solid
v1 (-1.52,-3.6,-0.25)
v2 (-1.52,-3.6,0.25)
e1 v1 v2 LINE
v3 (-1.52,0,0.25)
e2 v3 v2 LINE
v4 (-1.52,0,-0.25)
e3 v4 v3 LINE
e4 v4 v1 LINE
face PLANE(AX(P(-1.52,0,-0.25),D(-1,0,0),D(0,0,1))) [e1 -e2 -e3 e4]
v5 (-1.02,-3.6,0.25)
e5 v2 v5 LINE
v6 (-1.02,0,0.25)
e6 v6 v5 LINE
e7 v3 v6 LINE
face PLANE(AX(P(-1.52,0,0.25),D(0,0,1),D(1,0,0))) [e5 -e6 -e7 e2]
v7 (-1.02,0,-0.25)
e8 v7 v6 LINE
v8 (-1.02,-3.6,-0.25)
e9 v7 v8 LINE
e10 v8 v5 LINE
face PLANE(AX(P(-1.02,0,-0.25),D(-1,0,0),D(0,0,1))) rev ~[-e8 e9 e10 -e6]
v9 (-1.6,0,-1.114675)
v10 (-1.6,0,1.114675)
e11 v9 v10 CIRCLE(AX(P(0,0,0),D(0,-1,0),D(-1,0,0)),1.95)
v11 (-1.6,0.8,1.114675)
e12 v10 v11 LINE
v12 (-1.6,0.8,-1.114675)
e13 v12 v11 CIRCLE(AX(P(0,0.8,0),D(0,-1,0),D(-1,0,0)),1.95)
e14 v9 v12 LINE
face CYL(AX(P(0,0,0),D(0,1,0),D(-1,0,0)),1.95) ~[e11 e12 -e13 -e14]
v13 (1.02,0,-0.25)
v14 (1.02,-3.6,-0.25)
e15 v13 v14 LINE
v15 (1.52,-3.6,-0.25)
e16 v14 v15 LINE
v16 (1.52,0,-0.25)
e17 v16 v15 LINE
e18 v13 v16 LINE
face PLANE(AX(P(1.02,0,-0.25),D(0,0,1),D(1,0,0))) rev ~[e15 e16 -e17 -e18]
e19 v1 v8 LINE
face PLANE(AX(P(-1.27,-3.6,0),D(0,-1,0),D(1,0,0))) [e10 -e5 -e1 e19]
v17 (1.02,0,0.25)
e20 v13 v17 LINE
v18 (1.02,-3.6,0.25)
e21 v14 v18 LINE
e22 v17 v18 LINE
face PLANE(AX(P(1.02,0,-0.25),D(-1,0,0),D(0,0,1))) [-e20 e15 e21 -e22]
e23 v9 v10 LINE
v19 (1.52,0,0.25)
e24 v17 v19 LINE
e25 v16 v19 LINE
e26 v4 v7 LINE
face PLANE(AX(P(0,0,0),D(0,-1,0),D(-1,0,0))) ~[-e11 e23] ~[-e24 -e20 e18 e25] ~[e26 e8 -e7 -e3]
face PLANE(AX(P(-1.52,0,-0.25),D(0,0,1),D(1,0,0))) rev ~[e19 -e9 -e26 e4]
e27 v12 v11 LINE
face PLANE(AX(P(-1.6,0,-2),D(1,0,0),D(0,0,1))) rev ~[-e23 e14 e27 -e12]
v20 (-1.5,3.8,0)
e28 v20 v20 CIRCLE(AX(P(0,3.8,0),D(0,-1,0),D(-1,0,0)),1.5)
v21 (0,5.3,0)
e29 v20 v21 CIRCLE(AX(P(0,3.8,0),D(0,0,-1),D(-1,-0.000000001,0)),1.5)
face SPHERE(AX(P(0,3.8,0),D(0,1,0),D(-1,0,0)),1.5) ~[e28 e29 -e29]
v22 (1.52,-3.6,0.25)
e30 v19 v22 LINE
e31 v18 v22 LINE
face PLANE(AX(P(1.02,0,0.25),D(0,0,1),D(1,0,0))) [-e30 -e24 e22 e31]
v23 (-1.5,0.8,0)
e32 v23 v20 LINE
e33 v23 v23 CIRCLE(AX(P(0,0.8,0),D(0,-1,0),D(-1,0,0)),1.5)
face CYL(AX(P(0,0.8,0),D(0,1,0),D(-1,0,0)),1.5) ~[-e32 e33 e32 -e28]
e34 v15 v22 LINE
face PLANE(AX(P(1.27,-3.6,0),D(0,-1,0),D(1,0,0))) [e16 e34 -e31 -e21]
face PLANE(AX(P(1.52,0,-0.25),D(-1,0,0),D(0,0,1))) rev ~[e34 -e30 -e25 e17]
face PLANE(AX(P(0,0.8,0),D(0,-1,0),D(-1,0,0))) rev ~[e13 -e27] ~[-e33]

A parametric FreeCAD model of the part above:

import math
import FreeCAD as App
import Part
import Sketcher
from FreeCAD import Vector

doc = App.newDocument("Part")
body = doc.addObject("PartDesign::Body", "Body")

sketch1 = body.newObject("Sketcher::SketchObject", "Sketch")
sketch1.AttachmentSupport = (doc.getObject("XY_Plane"), [""])
sketch1.MapMode = "FlatFace"
sketch1.addGeometry([
    Part.LineSegment(Vector(-1.95, 0, 0), Vector(0, 0, 0)),
    Part.LineSegment(Vector(0, 0, 0), Vector(0, 5.3, 0)),
    Part.ArcOfCircle(Part.Circle(Vector(0, 3.8, 0), Vector(0, 0, 1), 1.5), math.radians(90), math.radians(180)),
    Part.LineSegment(Vector(-1.5, 3.8, 0), Vector(-1.5, 0.8, 0)),
    Part.LineSegment(Vector(-1.5, 0.8, 0), Vector(-1.95, 0.8, 0)),
    Part.LineSegment(Vector(-1.95, 0.8, 0), Vector(-1.95, 0, 0)),
], False)
sketch1.addConstraint([
    Sketcher.Constraint("Coincident", 0, 2, 1, 1),
    Sketcher.Constraint("Coincident", 1, 2, 2, 1),
    Sketcher.Constraint("Tangent", 2, 2, 3, 1),
    Sketcher.Constraint("Coincident", 3, 2, 4, 1),
    Sketcher.Constraint("Coincident", 4, 2, 5, 1),
    Sketcher.Constraint("Coincident", 5, 2, 0, 1),
    Sketcher.Constraint("Horizontal", 0),
    Sketcher.Constraint("Vertical", 1),
    Sketcher.Constraint("Vertical", 3),
    Sketcher.Constraint("Horizontal", 4),
    Sketcher.Constraint("Vertical", 5),
    Sketcher.Constraint("Coincident", 0, 2, -1, 1),
    Sketcher.Constraint("PointOnObject", 2, 3, -2),
    Sketcher.Constraint("Radius", 2, 1.5),
    Sketcher.Constraint("DistanceY", 3, 2, 3, 1, 3.0),
    Sketcher.Constraint("DistanceY", 1, 1, 1, 2, 5.3),
    Sketcher.Constraint("DistanceX", 0, 1, 0, 2, 1.95),
])
revolution = body.newObject("PartDesign::Revolution", "Revolution")
revolution.Profile = sketch1
revolution.ReferenceAxis = (sketch1, ["V_Axis"])
revolution.Angle = 360

sketch2 = body.newObject("Sketcher::SketchObject", "Sketch001")
sketch2.AttachmentSupport = (doc.getObject("XZ_Plane"), [""])
sketch2.MapMode = "FlatFace"
sketch2.addGeometry([
    Part.LineSegment(Vector(-1.52, 0.25, 0), Vector(-1.52, -0.25, 0)),
    Part.LineSegment(Vector(-1.52, -0.25, 0), Vector(-1.02, -0.25, 0)),
    Part.LineSegment(Vector(-1.02, -0.25, 0), Vector(-1.02, 0.25, 0)),
    Part.LineSegment(Vector(-1.02, 0.25, 0), Vector(-1.52, 0.25, 0)),
    Part.LineSegment(Vector(1.02, 0.25, 0), Vector(1.02, -0.25, 0)),
    Part.LineSegment(Vector(1.02, -0.25, 0), Vector(1.52, -0.25, 0)),
    Part.LineSegment(Vector(1.52, -0.25, 0), Vector(1.52, 0.25, 0)),
    Part.LineSegment(Vector(1.52, 0.25, 0), Vector(1.02, 0.25, 0)),
], False)
sketch2.addConstraint([
    Sketcher.Constraint("Coincident", 0, 2, 1, 1),
    Sketcher.Constraint("Coincident", 1, 2, 2, 1),
    Sketcher.Constraint("Coincident", 2, 2, 3, 1),
    Sketcher.Constraint("Coincident", 3, 2, 0, 1),
    Sketcher.Constraint("Coincident", 4, 2, 5, 1),
    Sketcher.Constraint("Coincident", 5, 2, 6, 1),
    Sketcher.Constraint("Coincident", 6, 2, 7, 1),
    Sketcher.Constraint("Coincident", 7, 2, 4, 1),
    Sketcher.Constraint("Vertical", 0),
    Sketcher.Constraint("Horizontal", 1),
    Sketcher.Constraint("Vertical", 2),
    Sketcher.Constraint("Horizontal", 3),
    Sketcher.Constraint("Vertical", 4),
    Sketcher.Constraint("Horizontal", 5),
    Sketcher.Constraint("Vertical", 6),
    Sketcher.Constraint("Horizontal", 7),
    Sketcher.Constraint("Symmetric", 2, 2, 4, 2, -1, 1),
    Sketcher.Constraint("Symmetric", 0, 2, 6, 2, -1, 1),
    Sketcher.Constraint("Horizontal", 1, 2, 4, 2),
    Sketcher.Constraint("Equal", 7, 0),
    Sketcher.Constraint("DistanceX", 1, 1, 1, 2, 0.5),
    Sketcher.Constraint("DistanceX", 0, 2, -1, 1, 1.52),
])
pad1 = body.newObject("PartDesign::Pad", "Pad")
pad1.Profile = sketch2
pad1.Length = 3.6

sketch3 = body.newObject("Sketcher::SketchObject", "Sketch002")
sketch3.AttachmentSupport = (doc.getObject("XZ_Plane"), [""])
sketch3.MapMode = "FlatFace"
sketch3.addGeometry([
    Part.LineSegment(Vector(-2.6, 2, 0), Vector(-2.6, -2, 0)),
    Part.LineSegment(Vector(-2.6, -2, 0), Vector(-1.6, -2, 0)),
    Part.LineSegment(Vector(-1.6, -2, 0), Vector(-1.6, 2, 0)),
    Part.LineSegment(Vector(-1.6, 2, 0), Vector(-2.6, 2, 0)),
], False)
sketch3.addConstraint([
    Sketcher.Constraint("Coincident", 0, 2, 1, 1),
    Sketcher.Constraint("Coincident", 1, 2, 2, 1),
    Sketcher.Constraint("Coincident", 2, 2, 3, 1),
    Sketcher.Constraint("Coincident", 3, 2, 0, 1),
    Sketcher.Constraint("Vertical", 0),
    Sketcher.Constraint("Horizontal", 1),
    Sketcher.Constraint("Vertical", 2),
    Sketcher.Constraint("Horizontal", 3),
    Sketcher.Constraint("DistanceX", 1, 1, 1, 2, 1.0),
    Sketcher.Constraint("DistanceY", 0, 2, 0, 1, 4.0),
    Sketcher.Constraint("DistanceY", 0, 2, -1, 1, 2.0),
    Sketcher.Constraint("DistanceX", 0, 2, -1, 1, 2.6),
])
pocket1 = body.newObject("PartDesign::Pocket", "Pocket")
pocket1.Profile = sketch3
pocket1.Type = "ThroughAll"

doc.recompute()
